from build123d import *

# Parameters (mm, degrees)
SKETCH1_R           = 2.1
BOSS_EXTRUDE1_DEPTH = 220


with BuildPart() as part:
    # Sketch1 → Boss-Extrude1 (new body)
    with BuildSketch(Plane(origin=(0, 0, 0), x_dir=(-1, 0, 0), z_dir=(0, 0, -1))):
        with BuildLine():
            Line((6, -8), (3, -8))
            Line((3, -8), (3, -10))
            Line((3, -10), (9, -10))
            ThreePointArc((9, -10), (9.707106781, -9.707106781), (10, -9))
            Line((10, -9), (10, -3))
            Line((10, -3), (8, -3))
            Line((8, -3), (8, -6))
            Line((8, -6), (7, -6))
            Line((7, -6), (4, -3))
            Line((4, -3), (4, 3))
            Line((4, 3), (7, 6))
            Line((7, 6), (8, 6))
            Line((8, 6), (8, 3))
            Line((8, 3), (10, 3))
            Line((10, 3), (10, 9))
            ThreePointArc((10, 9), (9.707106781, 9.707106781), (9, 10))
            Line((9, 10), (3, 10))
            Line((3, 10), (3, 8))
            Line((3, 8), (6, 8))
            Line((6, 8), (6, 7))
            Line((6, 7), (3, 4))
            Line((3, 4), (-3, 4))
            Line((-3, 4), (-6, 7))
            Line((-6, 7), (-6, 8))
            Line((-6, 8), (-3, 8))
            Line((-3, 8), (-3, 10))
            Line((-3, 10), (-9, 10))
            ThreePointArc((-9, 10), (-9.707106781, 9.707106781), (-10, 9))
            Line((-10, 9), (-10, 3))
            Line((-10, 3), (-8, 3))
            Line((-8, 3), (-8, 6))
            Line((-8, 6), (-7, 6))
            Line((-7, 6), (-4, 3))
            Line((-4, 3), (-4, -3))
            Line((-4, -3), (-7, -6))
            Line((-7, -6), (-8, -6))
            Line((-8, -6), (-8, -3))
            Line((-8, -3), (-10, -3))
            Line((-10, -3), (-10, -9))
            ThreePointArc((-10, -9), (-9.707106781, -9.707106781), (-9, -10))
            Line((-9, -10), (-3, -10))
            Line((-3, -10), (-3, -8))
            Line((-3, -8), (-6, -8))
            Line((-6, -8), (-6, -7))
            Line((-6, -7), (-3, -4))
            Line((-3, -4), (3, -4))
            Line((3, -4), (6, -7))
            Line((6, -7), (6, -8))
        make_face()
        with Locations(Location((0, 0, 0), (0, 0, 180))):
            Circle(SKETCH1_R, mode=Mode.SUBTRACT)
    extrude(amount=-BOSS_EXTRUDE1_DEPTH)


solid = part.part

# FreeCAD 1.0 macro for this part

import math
import FreeCAD as App
import Part
import Sketcher
from FreeCAD import Vector
Q = App.Units.Quantity

doc = App.newDocument("Part")
body = doc.addObject("PartDesign::Body", "Body")

sketch1 = doc.addObject("Sketcher::SketchObject", "Sketch")
body.addObject(sketch1)
sketch1.AttachmentSupport = (doc.XY_Plane, [""])
sketch1.MapMode = "FlatFace"
sketch1.addGeometry([
    Part.LineSegment(Vector(-6, -8, 0), Vector(-3, -8, 0)),
    Part.LineSegment(Vector(-3, -8, 0), Vector(-3, -10, 0)),
    Part.LineSegment(Vector(-3, -10, 0), Vector(-9, -10, 0)),
    Part.ArcOfCircle(Part.Circle(Vector(-9, -9, 0), Vector(0, 0, 1), 1), math.radians(-180), math.radians(-90)),
    Part.LineSegment(Vector(-10, -9, 0), Vector(-10, -3, 0)),
    Part.LineSegment(Vector(-10, -3, 0), Vector(-8, -3, 0)),
    Part.LineSegment(Vector(-8, -3, 0), Vector(-8, -6, 0)),
    Part.LineSegment(Vector(-8, -6, 0), Vector(-7, -6, 0)),
    Part.LineSegment(Vector(-7, -6, 0), Vector(-4, -3, 0)),
    Part.LineSegment(Vector(-4, -3, 0), Vector(-4, 3, 0)),
    Part.LineSegment(Vector(-4, 3, 0), Vector(-7, 6, 0)),
    Part.LineSegment(Vector(-7, 6, 0), Vector(-8, 6, 0)),
    Part.LineSegment(Vector(-8, 6, 0), Vector(-8, 3, 0)),
    Part.LineSegment(Vector(-8, 3, 0), Vector(-10, 3, 0)),
    Part.LineSegment(Vector(-10, 3, 0), Vector(-10, 9, 0)),
    Part.ArcOfCircle(Part.Circle(Vector(-9, 9, 0), Vector(0, 0, 1), 1), math.radians(90), math.radians(180)),
    Part.LineSegment(Vector(-9, 10, 0), Vector(-3, 10, 0)),
    Part.LineSegment(Vector(-3, 10, 0), Vector(-3, 8, 0)),
    Part.LineSegment(Vector(-3, 8, 0), Vector(-6, 8, 0)),
    Part.LineSegment(Vector(-6, 8, 0), Vector(-6, 7, 0)),
    Part.LineSegment(Vector(-6, 7, 0), Vector(-3, 4, 0)),
    Part.LineSegment(Vector(-3, 4, 0), Vector(3, 4, 0)),
    Part.LineSegment(Vector(3, 4, 0), Vector(6, 7, 0)),
    Part.LineSegment(Vector(6, 7, 0), Vector(6, 8, 0)),
    Part.LineSegment(Vector(6, 8, 0), Vector(3, 8, 0)),
    Part.LineSegment(Vector(3, 8, 0), Vector(3, 10, 0)),
    Part.LineSegment(Vector(3, 10, 0), Vector(9, 10, 0)),
    Part.ArcOfCircle(Part.Circle(Vector(9, 9, 0), Vector(0, 0, 1), 1), math.radians(0), math.radians(90)),
    Part.LineSegment(Vector(10, 9, 0), Vector(10, 3, 0)),
    Part.LineSegment(Vector(10, 3, 0), Vector(8, 3, 0)),
    Part.LineSegment(Vector(8, 3, 0), Vector(8, 6, 0)),
    Part.LineSegment(Vector(8, 6, 0), Vector(7, 6, 0)),
    Part.LineSegment(Vector(7, 6, 0), Vector(4, 3, 0)),
    Part.LineSegment(Vector(4, 3, 0), Vector(4, -3, 0)),
    Part.LineSegment(Vector(4, -3, 0), Vector(7, -6, 0)),
    Part.LineSegment(Vector(7, -6, 0), Vector(8, -6, 0)),
    Part.LineSegment(Vector(8, -6, 0), Vector(8, -3, 0)),
    Part.LineSegment(Vector(8, -3, 0), Vector(10, -3, 0)),
    Part.LineSegment(Vector(10, -3, 0), Vector(10, -9, 0)),
    Part.ArcOfCircle(Part.Circle(Vector(9, -9, 0), Vector(0, 0, 1), 1), math.radians(-90), math.radians(0)),
    Part.LineSegment(Vector(9, -10, 0), Vector(3, -10, 0)),
    Part.LineSegment(Vector(3, -10, 0), Vector(3, -8, 0)),
    Part.LineSegment(Vector(3, -8, 0), Vector(6, -8, 0)),
    Part.LineSegment(Vector(6, -8, 0), Vector(6, -7, 0)),
    Part.LineSegment(Vector(6, -7, 0), Vector(3, -4, 0)),
    Part.LineSegment(Vector(3, -4, 0), Vector(-3, -4, 0)),
    Part.LineSegment(Vector(-3, -4, 0), Vector(-6, -7, 0)),
    Part.LineSegment(Vector(-6, -7, 0), Vector(-6, -8, 0)),
    Part.Circle(Vector(0, 0, 0), Vector(0, 0, 1), 2.1),
], False)
sketch1.addConstraint([
    Sketcher.Constraint("Coincident", 0, 2, 1, 1),
    Sketcher.Constraint("Coincident", 1, 2, 2, 1),
    Sketcher.Constraint("Tangent", 2, 2, 3, 2),
    Sketcher.Constraint("Tangent", 3, 1, 4, 1),
    Sketcher.Constraint("Coincident", 4, 2, 5, 1),
    Sketcher.Constraint("Coincident", 5, 2, 6, 1),
    Sketcher.Constraint("Coincident", 6, 2, 7, 1),
    Sketcher.Constraint("Coincident", 7, 2, 8, 1),
    Sketcher.Constraint("Coincident", 8, 2, 9, 1),
    Sketcher.Constraint("Coincident", 9, 2, 10, 1),
    Sketcher.Constraint("Coincident", 10, 2, 11, 1),
    Sketcher.Constraint("Coincident", 11, 2, 12, 1),
    Sketcher.Constraint("Coincident", 12, 2, 13, 1),
    Sketcher.Constraint("Coincident", 13, 2, 14, 1),
    Sketcher.Constraint("Tangent", 14, 2, 15, 2),
    Sketcher.Constraint("Tangent", 15, 1, 16, 1),
    Sketcher.Constraint("Coincident", 16, 2, 17, 1),
    Sketcher.Constraint("Coincident", 17, 2, 18, 1),
    Sketcher.Constraint("Coincident", 18, 2, 19, 1),
    Sketcher.Constraint("Coincident", 19, 2, 20, 1),
    Sketcher.Constraint("Coincident", 20, 2, 21, 1),
    Sketcher.Constraint("Coincident", 21, 2, 22, 1),
    Sketcher.Constraint("Coincident", 22, 2, 23, 1),
    Sketcher.Constraint("Coincident", 23, 2, 24, 1),
    Sketcher.Constraint("Coincident", 24, 2, 25, 1),
    Sketcher.Constraint("Coincident", 25, 2, 26, 1),
    Sketcher.Constraint("Tangent", 26, 2, 27, 2),
    Sketcher.Constraint("Tangent", 27, 1, 28, 1),
    Sketcher.Constraint("Coincident", 28, 2, 29, 1),
    Sketcher.Constraint("Coincident", 29, 2, 30, 1),
    Sketcher.Constraint("Coincident", 30, 2, 31, 1),
    Sketcher.Constraint("Coincident", 31, 2, 32, 1),
    Sketcher.Constraint("Coincident", 32, 2, 33, 1),
    Sketcher.Constraint("Coincident", 33, 2, 34, 1),
    Sketcher.Constraint("Coincident", 34, 2, 35, 1),
    Sketcher.Constraint("Coincident", 35, 2, 36, 1),
    Sketcher.Constraint("Coincident", 36, 2, 37, 1),
    Sketcher.Constraint("Coincident", 37, 2, 38, 1),
    Sketcher.Constraint("Tangent", 38, 2, 39, 2),
    Sketcher.Constraint("Tangent", 39, 1, 40, 1),
    Sketcher.Constraint("Coincident", 40, 2, 41, 1),
    Sketcher.Constraint("Coincident", 41, 2, 42, 1),
    Sketcher.Constraint("Coincident", 42, 2, 43, 1),
    Sketcher.Constraint("Coincident", 43, 2, 44, 1),
    Sketcher.Constraint("Coincident", 44, 2, 45, 1),
    Sketcher.Constraint("Coincident", 45, 2, 46, 1),
    Sketcher.Constraint("Coincident", 46, 2, 47, 1),
    Sketcher.Constraint("Coincident", 47, 2, 0, 1),
    Sketcher.Constraint("Horizontal", 0),
    Sketcher.Constraint("Vertical", 1),
    Sketcher.Constraint("Horizontal", 2),
    Sketcher.Constraint("Vertical", 4),
    Sketcher.Constraint("Horizontal", 5),
    Sketcher.Constraint("Vertical", 6),
    Sketcher.Constraint("Horizontal", 7),
    Sketcher.Constraint("Vertical", 9),
    Sketcher.Constraint("Horizontal", 11),
    Sketcher.Constraint("Vertical", 12),
    Sketcher.Constraint("Horizontal", 13),
    Sketcher.Constraint("Vertical", 14),
    Sketcher.Constraint("Horizontal", 16),
    Sketcher.Constraint("Vertical", 17),
    Sketcher.Constraint("Horizontal", 18),
    Sketcher.Constraint("Vertical", 19),
    Sketcher.Constraint("Horizontal", 21),
    Sketcher.Constraint("Vertical", 23),
    Sketcher.Constraint("Horizontal", 24),
    Sketcher.Constraint("Vertical", 25),
    Sketcher.Constraint("Horizontal", 26),
    Sketcher.Constraint("Vertical", 28),
    Sketcher.Constraint("Horizontal", 29),
    Sketcher.Constraint("Vertical", 30),
    Sketcher.Constraint("Horizontal", 31),
    Sketcher.Constraint("Vertical", 33),
    Sketcher.Constraint("Horizontal", 35),
    Sketcher.Constraint("Vertical", 36),
    Sketcher.Constraint("Horizontal", 37),
    Sketcher.Constraint("Vertical", 38),
    Sketcher.Constraint("Horizontal", 40),
    Sketcher.Constraint("Vertical", 41),
    Sketcher.Constraint("Horizontal", 42),
    Sketcher.Constraint("Vertical", 43),
    Sketcher.Constraint("Horizontal", 45),
    Sketcher.Constraint("Vertical", 47),
    Sketcher.Constraint("Coincident", 48, 3, -1, 1),
    Sketcher.Constraint("Equal", 3, 15),
    Sketcher.Constraint("Equal", 15, 27),
    Sketcher.Constraint("Equal", 27, 39),
    Sketcher.Constraint("Symmetric", 3, 3, 27, 3, -1, 1),
    Sketcher.Constraint("Symmetric", 15, 3, 39, 3, -1, 1),
    Sketcher.Constraint("Symmetric", 0, 2, 24, 2, -1, 1),
    Sketcher.Constraint("Symmetric", 5, 2, 29, 2, -1, 1),
    Sketcher.Constraint("Symmetric", 7, 2, 31, 2, -1, 1),
    Sketcher.Constraint("Symmetric", 8, 2, 32, 2, -1, 1),
    Sketcher.Constraint("Symmetric", 10, 2, 34, 2, -1, 1),
    Sketcher.Constraint("Symmetric", 12, 2, 36, 2, -1, 1),
    Sketcher.Constraint("Symmetric", 17, 2, 41, 2, -1, 1),
    Sketcher.Constraint("Symmetric", 19, 2, 43, 2, -1, 1),
    Sketcher.Constraint("Symmetric", 20, 2, 44, 2, -1, 1),
    Sketcher.Constraint("Symmetric", 22, 2, 46, 2, -1, 1),
    Sketcher.Constraint("Symmetric", 15, 3, 27, 3, -2),
    Sketcher.Constraint("Symmetric", 19, 2, 22, 2, -2),
    Sketcher.Constraint("Symmetric", 17, 2, 24, 2, -2),
    Sketcher.Constraint("Symmetric", 12, 2, 29, 2, -2),
    Sketcher.Constraint("Symmetric", 10, 2, 31, 2, -2),
    Sketcher.Constraint("Perpendicular", 8, 10),
    Sketcher.Constraint("Parallel", 10, 20),
    Sketcher.Constraint("Perpendicular", 20, 22),
    Sketcher.Constraint("Perpendicular", 32, 34),
    Sketcher.Constraint("Perpendicular", 44, 46),
    Sketcher.Constraint("Horizontal", 5, 2, 8, 2),
    Sketcher.Constraint("Horizontal", 9, 2, 12, 2),
    Sketcher.Constraint("Vertical", 17, 2, 20, 2),
    Sketcher.Constraint("Equal", 16, 21),
    Sketcher.Constraint("Equal", 37, 1),
    Sketcher.Constraint("Equal", 45, 4),
    Sketcher.Constraint("Equal", 42, 6),
    Sketcher.Constraint("Equal", 4, 9),
    Sketcher.Constraint("Equal", 35, 19),
    Sketcher.Constraint("Radius", 3, Q("1 mm")),
    Sketcher.Constraint("Diameter", 48, Q("4.2 mm")),
    Sketcher.Constraint("DistanceX", 0, 1, 0, 2, Q("3 mm")),
    Sketcher.Constraint("DistanceX", 2, 2, 2, 1, Q("6 mm")),
    Sketcher.Constraint("DistanceX", 5, 1, 5, 2, Q("2 mm")),
    Sketcher.Constraint("DistanceX", 7, 1, 7, 2, Q("1 mm")),
])
pad1 = doc.addObject("PartDesign::Pad", "Pad")
body.addObject(pad1)
pad1.Profile = sketch1
pad1.Length = 220

doc.recompute()
